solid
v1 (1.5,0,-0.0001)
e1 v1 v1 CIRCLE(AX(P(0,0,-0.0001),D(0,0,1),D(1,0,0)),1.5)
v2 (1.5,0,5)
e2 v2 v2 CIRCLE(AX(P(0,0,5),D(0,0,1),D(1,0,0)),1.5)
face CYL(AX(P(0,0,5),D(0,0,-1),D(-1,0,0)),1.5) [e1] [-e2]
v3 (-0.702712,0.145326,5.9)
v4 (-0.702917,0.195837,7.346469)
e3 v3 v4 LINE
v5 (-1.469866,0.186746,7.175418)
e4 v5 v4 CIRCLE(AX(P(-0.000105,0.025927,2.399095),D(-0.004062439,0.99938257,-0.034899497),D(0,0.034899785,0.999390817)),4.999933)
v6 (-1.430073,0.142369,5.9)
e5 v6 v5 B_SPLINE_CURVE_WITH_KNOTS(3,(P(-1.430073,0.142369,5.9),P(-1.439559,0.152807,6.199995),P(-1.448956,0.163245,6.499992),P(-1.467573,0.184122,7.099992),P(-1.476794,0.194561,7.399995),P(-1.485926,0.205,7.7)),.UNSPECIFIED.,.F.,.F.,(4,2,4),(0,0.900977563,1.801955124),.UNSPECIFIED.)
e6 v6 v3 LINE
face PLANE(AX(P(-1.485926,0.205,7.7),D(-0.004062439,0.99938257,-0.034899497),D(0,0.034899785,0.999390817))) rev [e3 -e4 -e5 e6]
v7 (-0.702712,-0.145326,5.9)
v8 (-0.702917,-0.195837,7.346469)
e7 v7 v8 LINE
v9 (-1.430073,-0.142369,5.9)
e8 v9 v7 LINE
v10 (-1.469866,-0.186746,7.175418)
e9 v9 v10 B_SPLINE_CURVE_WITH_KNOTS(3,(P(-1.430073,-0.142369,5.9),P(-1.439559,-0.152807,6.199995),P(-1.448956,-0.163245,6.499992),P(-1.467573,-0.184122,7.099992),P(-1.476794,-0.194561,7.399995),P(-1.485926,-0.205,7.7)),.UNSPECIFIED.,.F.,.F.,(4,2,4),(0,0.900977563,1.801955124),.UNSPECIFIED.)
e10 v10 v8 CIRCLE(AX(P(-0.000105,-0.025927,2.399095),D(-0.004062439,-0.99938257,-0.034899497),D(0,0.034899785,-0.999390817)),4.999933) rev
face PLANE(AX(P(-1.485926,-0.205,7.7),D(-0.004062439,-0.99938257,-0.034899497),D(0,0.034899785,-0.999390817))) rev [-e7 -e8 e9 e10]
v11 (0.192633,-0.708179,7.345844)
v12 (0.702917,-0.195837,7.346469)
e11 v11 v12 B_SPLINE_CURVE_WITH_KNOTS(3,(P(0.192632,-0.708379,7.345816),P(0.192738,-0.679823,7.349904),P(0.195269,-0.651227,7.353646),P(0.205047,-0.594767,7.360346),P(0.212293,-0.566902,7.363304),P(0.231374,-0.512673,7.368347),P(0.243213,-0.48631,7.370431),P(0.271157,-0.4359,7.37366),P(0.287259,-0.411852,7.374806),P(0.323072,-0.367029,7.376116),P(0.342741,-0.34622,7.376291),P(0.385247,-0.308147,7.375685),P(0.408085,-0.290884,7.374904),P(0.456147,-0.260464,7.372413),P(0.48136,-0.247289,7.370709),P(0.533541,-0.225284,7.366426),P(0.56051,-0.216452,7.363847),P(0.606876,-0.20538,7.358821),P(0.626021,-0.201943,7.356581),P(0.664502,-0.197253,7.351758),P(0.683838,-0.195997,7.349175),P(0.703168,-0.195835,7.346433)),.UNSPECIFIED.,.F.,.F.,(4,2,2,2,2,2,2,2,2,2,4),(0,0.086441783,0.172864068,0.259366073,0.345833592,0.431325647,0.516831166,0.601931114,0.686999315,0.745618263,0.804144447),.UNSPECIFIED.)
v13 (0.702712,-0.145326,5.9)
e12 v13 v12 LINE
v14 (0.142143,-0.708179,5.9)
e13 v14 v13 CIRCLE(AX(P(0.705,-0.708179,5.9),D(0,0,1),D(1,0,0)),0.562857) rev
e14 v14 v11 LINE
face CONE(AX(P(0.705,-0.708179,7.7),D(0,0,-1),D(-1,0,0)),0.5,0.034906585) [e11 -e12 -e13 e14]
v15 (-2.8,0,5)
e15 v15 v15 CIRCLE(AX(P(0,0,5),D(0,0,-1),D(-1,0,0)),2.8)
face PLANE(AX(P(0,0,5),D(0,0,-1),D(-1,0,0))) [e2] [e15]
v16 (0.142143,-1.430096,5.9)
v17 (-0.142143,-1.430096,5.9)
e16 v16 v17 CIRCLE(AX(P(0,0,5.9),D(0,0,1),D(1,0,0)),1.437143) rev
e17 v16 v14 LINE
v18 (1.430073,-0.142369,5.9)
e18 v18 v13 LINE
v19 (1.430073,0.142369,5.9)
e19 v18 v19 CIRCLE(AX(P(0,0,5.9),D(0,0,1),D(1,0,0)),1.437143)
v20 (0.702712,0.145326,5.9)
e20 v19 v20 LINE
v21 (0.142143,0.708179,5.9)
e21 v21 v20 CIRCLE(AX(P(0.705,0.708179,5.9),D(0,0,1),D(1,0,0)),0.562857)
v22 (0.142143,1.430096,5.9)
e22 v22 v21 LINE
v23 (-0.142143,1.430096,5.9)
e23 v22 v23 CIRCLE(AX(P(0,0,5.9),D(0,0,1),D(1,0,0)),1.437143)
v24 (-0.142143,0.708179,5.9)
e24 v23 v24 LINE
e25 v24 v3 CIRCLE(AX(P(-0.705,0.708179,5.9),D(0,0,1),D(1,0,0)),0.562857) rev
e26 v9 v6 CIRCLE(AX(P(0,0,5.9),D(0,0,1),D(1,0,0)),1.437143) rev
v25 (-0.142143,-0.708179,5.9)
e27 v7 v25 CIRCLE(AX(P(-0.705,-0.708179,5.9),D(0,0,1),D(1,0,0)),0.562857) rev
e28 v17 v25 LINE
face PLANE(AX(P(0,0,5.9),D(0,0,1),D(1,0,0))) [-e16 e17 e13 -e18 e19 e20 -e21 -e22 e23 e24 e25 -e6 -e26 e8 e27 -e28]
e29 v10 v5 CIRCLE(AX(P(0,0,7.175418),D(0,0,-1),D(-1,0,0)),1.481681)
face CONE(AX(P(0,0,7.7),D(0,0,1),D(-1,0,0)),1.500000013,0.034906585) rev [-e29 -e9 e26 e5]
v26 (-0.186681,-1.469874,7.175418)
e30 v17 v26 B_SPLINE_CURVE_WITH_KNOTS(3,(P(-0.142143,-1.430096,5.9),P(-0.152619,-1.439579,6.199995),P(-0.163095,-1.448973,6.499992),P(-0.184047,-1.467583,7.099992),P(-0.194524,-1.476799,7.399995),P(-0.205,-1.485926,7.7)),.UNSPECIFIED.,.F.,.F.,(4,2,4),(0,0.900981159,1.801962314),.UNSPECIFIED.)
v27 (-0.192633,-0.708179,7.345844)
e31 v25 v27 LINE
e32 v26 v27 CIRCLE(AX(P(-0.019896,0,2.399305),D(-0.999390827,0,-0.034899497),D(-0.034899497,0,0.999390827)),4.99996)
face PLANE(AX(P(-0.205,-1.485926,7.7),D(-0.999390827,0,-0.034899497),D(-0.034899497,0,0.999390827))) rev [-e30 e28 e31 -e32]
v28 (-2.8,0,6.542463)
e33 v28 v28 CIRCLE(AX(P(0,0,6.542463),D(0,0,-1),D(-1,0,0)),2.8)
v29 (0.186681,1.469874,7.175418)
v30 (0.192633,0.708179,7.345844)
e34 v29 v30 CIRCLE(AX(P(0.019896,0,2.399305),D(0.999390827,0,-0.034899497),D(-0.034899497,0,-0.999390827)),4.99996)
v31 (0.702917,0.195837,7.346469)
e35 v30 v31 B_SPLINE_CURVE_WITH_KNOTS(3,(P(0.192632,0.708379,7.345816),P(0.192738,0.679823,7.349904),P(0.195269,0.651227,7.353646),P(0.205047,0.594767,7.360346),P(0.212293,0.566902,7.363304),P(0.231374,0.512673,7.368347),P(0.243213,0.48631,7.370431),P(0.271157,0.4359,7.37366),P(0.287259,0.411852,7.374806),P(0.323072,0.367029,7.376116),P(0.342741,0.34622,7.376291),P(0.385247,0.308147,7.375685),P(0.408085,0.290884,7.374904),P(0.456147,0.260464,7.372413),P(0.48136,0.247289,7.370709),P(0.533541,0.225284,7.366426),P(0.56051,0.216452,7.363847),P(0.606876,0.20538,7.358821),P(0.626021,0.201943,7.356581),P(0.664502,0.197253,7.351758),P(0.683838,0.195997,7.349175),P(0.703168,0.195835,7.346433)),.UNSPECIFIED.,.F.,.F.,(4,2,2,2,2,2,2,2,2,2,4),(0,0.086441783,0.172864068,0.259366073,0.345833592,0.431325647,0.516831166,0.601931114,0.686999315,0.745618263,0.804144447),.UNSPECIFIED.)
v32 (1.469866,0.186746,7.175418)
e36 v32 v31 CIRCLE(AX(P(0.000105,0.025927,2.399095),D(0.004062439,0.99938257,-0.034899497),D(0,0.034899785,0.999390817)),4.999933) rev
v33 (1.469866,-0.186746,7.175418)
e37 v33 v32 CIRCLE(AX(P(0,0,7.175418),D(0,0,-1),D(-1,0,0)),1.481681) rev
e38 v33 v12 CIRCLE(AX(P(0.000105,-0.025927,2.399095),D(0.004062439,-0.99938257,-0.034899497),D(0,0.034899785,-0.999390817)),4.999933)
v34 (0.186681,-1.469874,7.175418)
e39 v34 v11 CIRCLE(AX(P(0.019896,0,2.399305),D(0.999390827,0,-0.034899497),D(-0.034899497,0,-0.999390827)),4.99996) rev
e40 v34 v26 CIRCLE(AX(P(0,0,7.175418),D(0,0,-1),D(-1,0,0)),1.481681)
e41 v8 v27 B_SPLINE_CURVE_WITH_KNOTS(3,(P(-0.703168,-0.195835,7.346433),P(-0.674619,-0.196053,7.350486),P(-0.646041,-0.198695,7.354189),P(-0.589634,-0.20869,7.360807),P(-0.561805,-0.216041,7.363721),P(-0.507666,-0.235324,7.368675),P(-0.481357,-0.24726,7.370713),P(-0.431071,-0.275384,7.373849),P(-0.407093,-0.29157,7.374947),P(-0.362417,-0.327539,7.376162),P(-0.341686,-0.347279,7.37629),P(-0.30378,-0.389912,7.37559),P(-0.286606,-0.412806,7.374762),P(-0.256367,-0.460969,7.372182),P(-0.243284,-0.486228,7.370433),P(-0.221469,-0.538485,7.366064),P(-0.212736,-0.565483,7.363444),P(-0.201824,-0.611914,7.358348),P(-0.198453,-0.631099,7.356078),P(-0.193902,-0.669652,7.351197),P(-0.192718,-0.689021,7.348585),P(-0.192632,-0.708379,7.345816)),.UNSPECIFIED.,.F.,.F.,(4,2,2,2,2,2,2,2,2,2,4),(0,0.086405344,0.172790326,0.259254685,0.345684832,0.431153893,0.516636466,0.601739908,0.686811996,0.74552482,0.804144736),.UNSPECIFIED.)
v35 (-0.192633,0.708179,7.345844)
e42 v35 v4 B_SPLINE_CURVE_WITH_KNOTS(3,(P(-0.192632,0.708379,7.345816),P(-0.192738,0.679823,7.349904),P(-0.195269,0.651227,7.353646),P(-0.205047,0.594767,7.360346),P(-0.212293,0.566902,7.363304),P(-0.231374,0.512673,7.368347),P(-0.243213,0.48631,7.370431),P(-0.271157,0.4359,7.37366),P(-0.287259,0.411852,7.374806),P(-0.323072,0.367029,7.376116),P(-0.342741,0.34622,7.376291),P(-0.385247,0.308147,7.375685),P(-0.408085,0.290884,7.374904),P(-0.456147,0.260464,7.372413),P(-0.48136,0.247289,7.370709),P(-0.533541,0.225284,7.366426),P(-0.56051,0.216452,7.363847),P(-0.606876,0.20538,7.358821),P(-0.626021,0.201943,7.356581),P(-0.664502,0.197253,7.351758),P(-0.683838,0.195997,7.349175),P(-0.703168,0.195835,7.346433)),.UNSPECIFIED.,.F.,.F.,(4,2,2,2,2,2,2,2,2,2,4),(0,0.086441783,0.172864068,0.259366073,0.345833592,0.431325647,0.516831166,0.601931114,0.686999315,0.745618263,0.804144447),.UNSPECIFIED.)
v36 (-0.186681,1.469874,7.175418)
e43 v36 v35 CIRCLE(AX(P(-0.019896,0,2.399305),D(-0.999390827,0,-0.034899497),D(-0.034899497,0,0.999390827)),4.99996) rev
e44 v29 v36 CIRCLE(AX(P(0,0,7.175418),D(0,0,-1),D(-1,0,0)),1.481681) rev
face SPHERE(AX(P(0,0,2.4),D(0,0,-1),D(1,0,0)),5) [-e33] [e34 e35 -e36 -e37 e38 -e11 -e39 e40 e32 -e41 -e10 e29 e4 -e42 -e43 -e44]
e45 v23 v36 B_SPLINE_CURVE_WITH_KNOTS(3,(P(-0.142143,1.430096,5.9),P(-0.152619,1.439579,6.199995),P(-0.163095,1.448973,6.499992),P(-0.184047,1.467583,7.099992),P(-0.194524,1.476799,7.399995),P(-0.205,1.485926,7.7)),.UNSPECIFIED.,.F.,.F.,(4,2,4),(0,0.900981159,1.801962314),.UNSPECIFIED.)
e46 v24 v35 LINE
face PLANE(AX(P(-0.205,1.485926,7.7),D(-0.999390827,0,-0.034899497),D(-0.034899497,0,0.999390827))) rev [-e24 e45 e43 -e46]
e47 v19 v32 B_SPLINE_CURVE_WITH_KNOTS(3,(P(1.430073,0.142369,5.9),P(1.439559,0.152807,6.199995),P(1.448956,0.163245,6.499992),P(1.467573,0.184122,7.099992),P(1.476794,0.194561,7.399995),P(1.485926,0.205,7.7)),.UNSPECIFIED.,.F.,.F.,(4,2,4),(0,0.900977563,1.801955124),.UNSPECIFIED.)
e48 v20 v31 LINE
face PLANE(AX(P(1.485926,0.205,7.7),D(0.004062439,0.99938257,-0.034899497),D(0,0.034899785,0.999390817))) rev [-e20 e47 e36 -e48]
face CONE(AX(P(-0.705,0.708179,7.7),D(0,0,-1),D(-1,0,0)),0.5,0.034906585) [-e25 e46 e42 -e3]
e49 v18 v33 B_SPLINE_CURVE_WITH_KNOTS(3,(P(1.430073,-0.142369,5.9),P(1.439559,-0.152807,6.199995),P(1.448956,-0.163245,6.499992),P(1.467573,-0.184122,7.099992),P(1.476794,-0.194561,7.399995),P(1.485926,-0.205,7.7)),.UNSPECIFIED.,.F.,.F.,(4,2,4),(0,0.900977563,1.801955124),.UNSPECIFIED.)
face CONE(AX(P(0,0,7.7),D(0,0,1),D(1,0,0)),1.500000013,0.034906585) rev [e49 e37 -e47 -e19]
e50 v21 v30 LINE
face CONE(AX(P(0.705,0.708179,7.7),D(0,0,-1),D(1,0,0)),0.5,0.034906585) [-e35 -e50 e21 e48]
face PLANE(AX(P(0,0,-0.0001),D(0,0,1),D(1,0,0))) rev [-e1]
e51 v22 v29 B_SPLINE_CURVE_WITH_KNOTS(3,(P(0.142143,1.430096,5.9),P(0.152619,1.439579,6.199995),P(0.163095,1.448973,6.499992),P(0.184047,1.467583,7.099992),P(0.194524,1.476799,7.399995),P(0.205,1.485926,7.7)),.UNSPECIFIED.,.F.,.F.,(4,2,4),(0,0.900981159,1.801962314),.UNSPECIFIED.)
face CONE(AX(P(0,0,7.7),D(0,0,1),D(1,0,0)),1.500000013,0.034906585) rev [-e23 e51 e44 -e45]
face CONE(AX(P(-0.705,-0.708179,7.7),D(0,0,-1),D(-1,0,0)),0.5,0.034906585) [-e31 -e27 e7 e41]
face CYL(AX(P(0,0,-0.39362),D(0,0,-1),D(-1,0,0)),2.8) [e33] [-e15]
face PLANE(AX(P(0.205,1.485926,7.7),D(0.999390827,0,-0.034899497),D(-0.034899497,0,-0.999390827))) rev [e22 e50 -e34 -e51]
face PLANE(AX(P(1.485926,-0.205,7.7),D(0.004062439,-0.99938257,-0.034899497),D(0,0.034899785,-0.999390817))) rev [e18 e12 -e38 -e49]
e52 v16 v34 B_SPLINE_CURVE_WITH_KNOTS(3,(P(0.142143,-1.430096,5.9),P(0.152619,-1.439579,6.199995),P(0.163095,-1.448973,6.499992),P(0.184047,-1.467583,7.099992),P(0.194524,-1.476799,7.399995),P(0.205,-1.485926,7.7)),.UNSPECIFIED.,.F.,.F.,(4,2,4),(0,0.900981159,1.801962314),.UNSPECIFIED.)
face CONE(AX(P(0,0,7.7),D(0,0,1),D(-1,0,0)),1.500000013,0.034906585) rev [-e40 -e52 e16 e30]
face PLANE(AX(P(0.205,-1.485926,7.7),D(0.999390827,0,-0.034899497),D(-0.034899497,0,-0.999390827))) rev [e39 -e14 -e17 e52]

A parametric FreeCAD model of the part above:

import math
import FreeCAD as App
import Part
import Sketcher

V = App.Vector
Q = App.Units.Quantity

doc = App.newDocument("Part")
body = doc.addObject("PartDesign::Body", "Body")

# Sketch on XY plane
sketch1 = body.newObject("Sketcher::SketchObject", "Sketch")
sketch1.AttachmentSupport = (doc.getObject("XY_Plane"), [""])
sketch1.MapMode = "FlatFace"
sketch1.addGeometry(Part.Circle(V(0, 0, 0), V(0, 0, 1), 1.5), False)
sketch1.addConstraint([
    Sketcher.Constraint("Coincident", 0, 3, -1, 1),
    Sketcher.Constraint("Diameter", 0, Q("3 mm")),
])
pad1 = body.newObject("PartDesign::Pad", "Pad")
pad1.Profile = sketch1
pad1.Type = "TwoLengths"
pad1.Length = 5
pad1.Length2 = 0.0001

# Sketch on XZ plane
sketch2 = body.newObject("Sketcher::SketchObject", "Sketch001")
sketch2.AttachmentSupport = (doc.getObject("XZ_Plane"), [""])
sketch2.MapMode = "FlatFace"
sketch2.addGeometry([
    Part.LineSegment(V(2.8, 5, 0), V(0, 5, 0)),
    Part.LineSegment(V(0, 5, 0), V(0, 7.4, 0)),
    Part.ArcOfCircle(Part.Circle(V(0, 2.4, 0), V(0, 0, 1), 5), math.radians(55.944203), math.radians(90)),
    Part.LineSegment(V(2.8, 6.542463, 0), V(2.8, 5, 0)),
], False)
sketch2.addConstraint([
    Sketcher.Constraint("Coincident", 0, 2, 1, 1),
    Sketcher.Constraint("Coincident", 1, 2, 2, 2),
    Sketcher.Constraint("Coincident", 2, 1, 3, 1),
    Sketcher.Constraint("Coincident", 3, 2, 0, 1),
    Sketcher.Constraint("Horizontal", 0),
    Sketcher.Constraint("Vertical", 1),
    Sketcher.Constraint("Vertical", 3),
    Sketcher.Constraint("PointOnObject", 2, 3, -2),
    Sketcher.Constraint("PointOnObject", 0, 2, -2),
    Sketcher.Constraint("Radius", 2, Q("5 mm")),
    Sketcher.Constraint("DistanceX", 0, 2, 0, 1, Q("2.8 mm")),
    Sketcher.Constraint("DistanceY", 1, 1, 1, 2, Q("2.4 mm")),
    Sketcher.Constraint("DistanceY", -1, 1, 0, 2, Q("5 mm")),
])
revolution = body.newObject("PartDesign::Revolution", "Revolution")
revolution.Profile = sketch2
revolution.ReferenceAxis = (sketch2, ["V_Axis"])
revolution.Angle = 360

# Sketch on XY plane
sketch3 = body.newObject("Sketcher::SketchObject", "Sketch002")
sketch3.AttachmentSupport = (doc.getObject("XY_Plane"), [""])
sketch3.MapMode = "FlatFace"
sketch3.AttachmentOffset = App.Placement(V(0, 0, 7.7), App.Rotation())
sketch3.addGeometry([
    Part.ArcOfCircle(Part.Circle(V(0, 0, 0), V(0, 0, 1), 1.5), math.radians(82.144994), math.radians(97.855006)),  # 0
    Part.LineSegment(V(0.205, 1.485926, 0), V(0.205, 0.708179, 0)),  # 1
    Part.ArcOfCircle(Part.Circle(V(0.705, 0.708179, 0), V(0, 0, 1), 0.5), math.radians(180), math.radians(269.767097)),  # 2
    Part.LineSegment(V(0.702968, 0.208183, 0), V(1.485926, 0.205, 0)),  # 3
    Part.ArcOfCircle(Part.Circle(V(0, 0, 0), V(0, 0, 1), 1.5), math.radians(-7.855006), math.radians(7.855006)),  # 4
    Part.LineSegment(V(1.485926, -0.205, 0), V(0.702968, -0.208183, 0)),  # 5
    Part.ArcOfCircle(Part.Circle(V(0.705, -0.708179, 0), V(0, 0, 1), 0.5), math.radians(90.232903), math.radians(180)),  # 6
    Part.LineSegment(V(0.205, -0.708179, 0), V(0.205, -1.485926, 0)),  # 7
    Part.ArcOfCircle(Part.Circle(V(0, 0, 0), V(0, 0, 1), 1.5), math.radians(-97.855006), math.radians(-82.144994)),  # 8
    Part.LineSegment(V(-0.205, -1.485926, 0), V(-0.205, -0.708179, 0)),  # 9
    Part.ArcOfCircle(Part.Circle(V(-0.705, -0.708179, 0), V(0, 0, 1), 0.5), math.radians(0), math.radians(89.767097)),  # 10
    Part.LineSegment(V(-0.702968, -0.208183, 0), V(-1.485926, -0.205, 0)),  # 11
    Part.ArcOfCircle(Part.Circle(V(0, 0, 0), V(0, 0, 1), 1.5), math.radians(172.144994), math.radians(187.855006)),  # 12
    Part.LineSegment(V(-1.485926, 0.205, 0), V(-0.702968, 0.208183, 0)),  # 13
    Part.ArcOfCircle(Part.Circle(V(-0.705, 0.708179, 0), V(0, 0, 1), 0.5), math.radians(-89.767097), math.radians(0)),  # 14
    Part.LineSegment(V(-0.205, 0.708179, 0), V(-0.205, 1.485926, 0)),  # 15
], False)
sketch3.addConstraint([
    Sketcher.Constraint("Coincident", 0, 1, 1, 1),
    Sketcher.Constraint("Tangent", 1, 2, 2, 1),
    Sketcher.Constraint("Tangent", 2, 2, 3, 1),
    Sketcher.Constraint("Coincident", 3, 2, 4, 2),
    Sketcher.Constraint("Coincident", 4, 1, 5, 1),
    Sketcher.Constraint("Tangent", 5, 2, 6, 1),
    Sketcher.Constraint("Tangent", 6, 2, 7, 1),
    Sketcher.Constraint("Coincident", 7, 2, 8, 2),
    Sketcher.Constraint("Coincident", 8, 1, 9, 1),
    Sketcher.Constraint("Tangent", 9, 2, 10, 1),
    Sketcher.Constraint("Tangent", 10, 2, 11, 1),
    Sketcher.Constraint("Coincident", 11, 2, 12, 2),
    Sketcher.Constraint("Coincident", 12, 1, 13, 1),
    Sketcher.Constraint("Tangent", 13, 2, 14, 1),
    Sketcher.Constraint("Tangent", 14, 2, 15, 1),
    Sketcher.Constraint("Coincident", 15, 2, 0, 2),
    Sketcher.Constraint("Vertical", 1),
    Sketcher.Constraint("Vertical", 7),
    Sketcher.Constraint("Vertical", 9),
    Sketcher.Constraint("Vertical", 15),
    Sketcher.Constraint("Coincident", 0, 3, -1, 1),
    Sketcher.Constraint("Coincident", 4, 3, -1, 1),
    Sketcher.Constraint("Coincident", 8, 3, -1, 1),
    Sketcher.Constraint("Coincident", 12, 3, -1, 1),
    Sketcher.Constraint("Equal", 0, 4),
    Sketcher.Constraint("Equal", 2, 6),
    Sketcher.Constraint("Equal", 4, 8),
    Sketcher.Constraint("Equal", 6, 10),
    Sketcher.Constraint("Equal", 8, 12),
    Sketcher.Constraint("Equal", 10, 14),
    Sketcher.Constraint("Symmetric", 2, 3, 10, 3, -1, 1),
    Sketcher.Constraint("Symmetric", 6, 3, 14, 3, -1, 1),
    Sketcher.Constraint("Symmetric", 6, 3, 10, 3, -2),
    Sketcher.Constraint("Parallel", 3, 11),
    Sketcher.Constraint("Parallel", 5, 13),
    Sketcher.Constraint("Horizontal", 4, 1, 11, 2),
    Sketcher.Constraint("Radius", 0, Q("1.5 mm")),
    Sketcher.Constraint("Radius", 2, Q("0.5 mm")),
    Sketcher.Constraint("DistanceX", 10, 3, 6, 3, Q("1.41 mm")),
    Sketcher.Constraint("DistanceY", 4, 1, 3, 2, Q("0.41 mm")),
    Sketcher.Constraint("DistanceY", 1, 2, 1, 1, Q("0.777747 mm")),
])
pocket1 = body.newObject("PartDesign::Pocket", "Pocket")
pocket1.Profile = sketch3
pocket1.Length = 1.8
pocket1.TaperAngle = -2

doc.recompute()
